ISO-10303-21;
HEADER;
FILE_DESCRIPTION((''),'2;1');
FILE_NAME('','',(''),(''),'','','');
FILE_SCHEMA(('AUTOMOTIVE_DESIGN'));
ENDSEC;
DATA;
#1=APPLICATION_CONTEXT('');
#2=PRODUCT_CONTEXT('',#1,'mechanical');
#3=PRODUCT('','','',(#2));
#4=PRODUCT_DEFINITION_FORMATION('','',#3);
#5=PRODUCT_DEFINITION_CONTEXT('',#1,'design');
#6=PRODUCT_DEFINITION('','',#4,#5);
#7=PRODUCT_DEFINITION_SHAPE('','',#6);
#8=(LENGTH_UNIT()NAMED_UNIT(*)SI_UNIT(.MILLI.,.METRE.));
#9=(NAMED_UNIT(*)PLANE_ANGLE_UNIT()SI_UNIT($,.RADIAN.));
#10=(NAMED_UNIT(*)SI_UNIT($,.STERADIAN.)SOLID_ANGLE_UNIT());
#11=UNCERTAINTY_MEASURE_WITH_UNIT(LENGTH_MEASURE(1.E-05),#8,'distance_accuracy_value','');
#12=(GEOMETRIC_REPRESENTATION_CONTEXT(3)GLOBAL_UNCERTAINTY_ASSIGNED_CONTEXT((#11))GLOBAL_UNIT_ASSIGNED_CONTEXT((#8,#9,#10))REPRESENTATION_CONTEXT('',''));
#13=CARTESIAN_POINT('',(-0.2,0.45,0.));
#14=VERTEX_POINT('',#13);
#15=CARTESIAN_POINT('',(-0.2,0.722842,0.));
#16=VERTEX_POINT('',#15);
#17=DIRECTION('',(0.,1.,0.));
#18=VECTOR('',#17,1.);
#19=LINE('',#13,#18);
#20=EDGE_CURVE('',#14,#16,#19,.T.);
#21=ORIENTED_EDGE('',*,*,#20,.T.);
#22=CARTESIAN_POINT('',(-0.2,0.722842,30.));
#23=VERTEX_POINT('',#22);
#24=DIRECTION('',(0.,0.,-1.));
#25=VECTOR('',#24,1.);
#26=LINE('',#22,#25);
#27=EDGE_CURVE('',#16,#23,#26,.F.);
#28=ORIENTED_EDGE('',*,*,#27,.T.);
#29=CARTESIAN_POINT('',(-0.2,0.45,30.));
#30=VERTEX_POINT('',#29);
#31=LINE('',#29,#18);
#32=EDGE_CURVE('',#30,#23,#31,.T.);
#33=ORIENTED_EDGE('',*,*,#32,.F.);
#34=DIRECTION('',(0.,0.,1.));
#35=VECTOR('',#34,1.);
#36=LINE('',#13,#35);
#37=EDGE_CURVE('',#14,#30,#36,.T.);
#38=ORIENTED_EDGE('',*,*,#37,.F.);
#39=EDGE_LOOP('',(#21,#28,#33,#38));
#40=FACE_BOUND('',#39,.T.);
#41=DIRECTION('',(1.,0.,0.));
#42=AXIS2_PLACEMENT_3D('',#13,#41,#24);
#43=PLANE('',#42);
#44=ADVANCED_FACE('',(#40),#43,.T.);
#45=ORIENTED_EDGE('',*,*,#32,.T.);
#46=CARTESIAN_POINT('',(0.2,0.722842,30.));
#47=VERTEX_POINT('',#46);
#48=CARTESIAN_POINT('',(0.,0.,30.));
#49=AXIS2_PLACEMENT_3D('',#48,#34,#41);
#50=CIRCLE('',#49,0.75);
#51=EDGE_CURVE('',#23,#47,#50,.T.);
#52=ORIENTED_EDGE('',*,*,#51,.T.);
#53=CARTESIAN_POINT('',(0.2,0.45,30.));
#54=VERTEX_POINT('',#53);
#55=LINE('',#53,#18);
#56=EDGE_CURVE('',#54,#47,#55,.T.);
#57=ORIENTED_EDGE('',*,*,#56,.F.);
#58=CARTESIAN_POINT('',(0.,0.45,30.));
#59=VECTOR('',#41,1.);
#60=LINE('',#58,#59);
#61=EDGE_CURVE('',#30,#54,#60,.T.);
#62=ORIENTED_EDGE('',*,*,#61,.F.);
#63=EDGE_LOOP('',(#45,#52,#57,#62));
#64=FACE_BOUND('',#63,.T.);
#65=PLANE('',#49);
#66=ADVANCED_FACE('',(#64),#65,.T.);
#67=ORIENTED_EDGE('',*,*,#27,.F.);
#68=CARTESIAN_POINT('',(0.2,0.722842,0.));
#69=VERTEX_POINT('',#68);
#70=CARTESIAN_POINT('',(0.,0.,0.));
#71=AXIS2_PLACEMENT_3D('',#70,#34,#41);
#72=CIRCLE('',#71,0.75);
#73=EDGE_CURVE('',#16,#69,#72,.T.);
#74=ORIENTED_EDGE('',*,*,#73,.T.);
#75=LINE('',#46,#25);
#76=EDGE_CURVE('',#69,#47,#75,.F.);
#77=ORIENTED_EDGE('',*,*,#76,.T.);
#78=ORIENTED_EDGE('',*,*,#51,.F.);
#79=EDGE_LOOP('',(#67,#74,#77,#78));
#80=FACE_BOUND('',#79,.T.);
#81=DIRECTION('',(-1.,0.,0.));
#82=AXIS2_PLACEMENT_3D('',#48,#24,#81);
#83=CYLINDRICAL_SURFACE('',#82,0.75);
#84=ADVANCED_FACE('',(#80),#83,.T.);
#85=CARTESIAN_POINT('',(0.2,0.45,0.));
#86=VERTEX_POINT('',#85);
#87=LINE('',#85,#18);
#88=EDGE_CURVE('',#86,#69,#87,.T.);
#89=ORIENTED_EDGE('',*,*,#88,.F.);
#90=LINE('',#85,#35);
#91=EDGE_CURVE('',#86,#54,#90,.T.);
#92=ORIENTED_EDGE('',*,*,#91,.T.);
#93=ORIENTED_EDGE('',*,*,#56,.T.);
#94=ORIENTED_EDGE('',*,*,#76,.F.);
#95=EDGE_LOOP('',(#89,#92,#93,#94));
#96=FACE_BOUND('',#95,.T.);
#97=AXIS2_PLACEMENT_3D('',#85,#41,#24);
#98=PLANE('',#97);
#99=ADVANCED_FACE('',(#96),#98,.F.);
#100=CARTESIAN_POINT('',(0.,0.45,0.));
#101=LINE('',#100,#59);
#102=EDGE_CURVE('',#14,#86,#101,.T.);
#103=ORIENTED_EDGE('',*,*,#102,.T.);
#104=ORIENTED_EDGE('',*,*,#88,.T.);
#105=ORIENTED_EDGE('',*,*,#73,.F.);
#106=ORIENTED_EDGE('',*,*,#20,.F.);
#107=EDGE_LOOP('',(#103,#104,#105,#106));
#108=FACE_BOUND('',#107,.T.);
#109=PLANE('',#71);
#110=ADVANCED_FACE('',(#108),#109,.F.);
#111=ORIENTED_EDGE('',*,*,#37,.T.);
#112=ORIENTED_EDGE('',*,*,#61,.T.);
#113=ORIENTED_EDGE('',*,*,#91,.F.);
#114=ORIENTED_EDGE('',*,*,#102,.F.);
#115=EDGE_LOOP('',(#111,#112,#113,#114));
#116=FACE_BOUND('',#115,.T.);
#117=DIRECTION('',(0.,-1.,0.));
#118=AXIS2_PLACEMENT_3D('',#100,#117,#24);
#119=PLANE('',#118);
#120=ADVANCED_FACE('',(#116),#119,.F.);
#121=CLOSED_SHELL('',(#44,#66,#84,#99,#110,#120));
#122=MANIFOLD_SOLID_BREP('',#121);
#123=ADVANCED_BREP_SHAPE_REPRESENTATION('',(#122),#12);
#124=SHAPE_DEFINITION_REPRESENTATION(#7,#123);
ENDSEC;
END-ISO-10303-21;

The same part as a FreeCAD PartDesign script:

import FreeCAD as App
import Part
import Sketcher
from FreeCAD import Vector
Q = App.Units.Quantity

doc = App.newDocument("Part")
body = doc.addObject("PartDesign::Body", "Body")

# Sketch on XY plane
sketch1 = body.newObject("Sketcher::SketchObject", "Sketch")
sketch1.AttachmentSupport = (doc.getObject("XY_Plane"), [""])
sketch1.MapMode = "FlatFace"
sketch1.addGeometry(Part.Circle(Vector(0, 0, 0), Vector(0, 0, 1), 0.8), False)
sketch1.addConstraint(Sketcher.Constraint("Coincident", 0, 3, -1, 1))
sketch1.addConstraint(Sketcher.Constraint("Diameter", 0, Q("1.5 mm")))
pad1 = body.newObject("PartDesign::Pad", "Pad")
pad1.Profile = sketch1
pad1.Length = 30

# Sketch on XY plane
sketch2 = body.newObject("Sketcher::SketchObject", "Sketch001")
sketch2.AttachmentSupport = (doc.getObject("XY_Plane"), [""])
sketch2.MapMode = "FlatFace"
sketch2.AttachmentOffset = App.Placement(Vector(0, 0, 30), App.Rotation())
sketch2.addGeometry(Part.LineSegment(Vector(0, 0.81, 0), Vector(0, 0.45, 0)), False)
sketch2.addGeometry(Part.LineSegment(Vector(0, 0.45, 0), Vector(0.2, 0.45, 0)), False)
sketch2.addGeometry(Part.LineSegment(Vector(0.2, 0.45, 0), Vector(0.2, 0.81, 0)), False)
sketch2.addGeometry(Part.LineSegment(Vector(0.2, 0.81, 0), Vector(0, 0.81, 0)), False)
sketch2.addConstraint(Sketcher.Constraint("Coincident", 0, 2, 1, 1))
sketch2.addConstraint(Sketcher.Constraint("Coincident", 1, 2, 2, 1))
sketch2.addConstraint(Sketcher.Constraint("Coincident", 2, 2, 3, 1))
sketch2.addConstraint(Sketcher.Constraint("Coincident", 3, 2, 0, 1))
sketch2.addConstraint(Sketcher.Constraint("Vertical", 0))
sketch2.addConstraint(Sketcher.Constraint("Horizontal", 1))
sketch2.addConstraint(Sketcher.Constraint("Vertical", 2))
sketch2.addConstraint(Sketcher.Constraint("Horizontal", 3))
sketch2.addConstraint(Sketcher.Constraint("PointOnObject", 0, 2, -2))
sketch2.addConstraint(Sketcher.Constraint("DistanceX", 1, 1, 1, 2, Q("0.2 mm")))
sketch2.addConstraint(Sketcher.Constraint("DistanceY", -1, 1, 0, 2, Q("0.45 mm")))
sketch2.addConstraint(Sketcher.Constraint("DistanceY", 0, 2, 0, 1, Q("0.357535 mm")))
pocket1 = body.newObject("PartDesign::Pocket", "Pocket")
pocket1.Profile = sketch2
pocket1.Type = "ThroughAll"
doc.recompute()

mirrored = body.newObject("PartDesign::Mirrored", "Mirrored")
mirrored.Originals = [pocket1]
mirrored.MirrorPlane = (doc.getObject("YZ_Plane"), [""])
body.Tip = mirrored

doc.recompute()
